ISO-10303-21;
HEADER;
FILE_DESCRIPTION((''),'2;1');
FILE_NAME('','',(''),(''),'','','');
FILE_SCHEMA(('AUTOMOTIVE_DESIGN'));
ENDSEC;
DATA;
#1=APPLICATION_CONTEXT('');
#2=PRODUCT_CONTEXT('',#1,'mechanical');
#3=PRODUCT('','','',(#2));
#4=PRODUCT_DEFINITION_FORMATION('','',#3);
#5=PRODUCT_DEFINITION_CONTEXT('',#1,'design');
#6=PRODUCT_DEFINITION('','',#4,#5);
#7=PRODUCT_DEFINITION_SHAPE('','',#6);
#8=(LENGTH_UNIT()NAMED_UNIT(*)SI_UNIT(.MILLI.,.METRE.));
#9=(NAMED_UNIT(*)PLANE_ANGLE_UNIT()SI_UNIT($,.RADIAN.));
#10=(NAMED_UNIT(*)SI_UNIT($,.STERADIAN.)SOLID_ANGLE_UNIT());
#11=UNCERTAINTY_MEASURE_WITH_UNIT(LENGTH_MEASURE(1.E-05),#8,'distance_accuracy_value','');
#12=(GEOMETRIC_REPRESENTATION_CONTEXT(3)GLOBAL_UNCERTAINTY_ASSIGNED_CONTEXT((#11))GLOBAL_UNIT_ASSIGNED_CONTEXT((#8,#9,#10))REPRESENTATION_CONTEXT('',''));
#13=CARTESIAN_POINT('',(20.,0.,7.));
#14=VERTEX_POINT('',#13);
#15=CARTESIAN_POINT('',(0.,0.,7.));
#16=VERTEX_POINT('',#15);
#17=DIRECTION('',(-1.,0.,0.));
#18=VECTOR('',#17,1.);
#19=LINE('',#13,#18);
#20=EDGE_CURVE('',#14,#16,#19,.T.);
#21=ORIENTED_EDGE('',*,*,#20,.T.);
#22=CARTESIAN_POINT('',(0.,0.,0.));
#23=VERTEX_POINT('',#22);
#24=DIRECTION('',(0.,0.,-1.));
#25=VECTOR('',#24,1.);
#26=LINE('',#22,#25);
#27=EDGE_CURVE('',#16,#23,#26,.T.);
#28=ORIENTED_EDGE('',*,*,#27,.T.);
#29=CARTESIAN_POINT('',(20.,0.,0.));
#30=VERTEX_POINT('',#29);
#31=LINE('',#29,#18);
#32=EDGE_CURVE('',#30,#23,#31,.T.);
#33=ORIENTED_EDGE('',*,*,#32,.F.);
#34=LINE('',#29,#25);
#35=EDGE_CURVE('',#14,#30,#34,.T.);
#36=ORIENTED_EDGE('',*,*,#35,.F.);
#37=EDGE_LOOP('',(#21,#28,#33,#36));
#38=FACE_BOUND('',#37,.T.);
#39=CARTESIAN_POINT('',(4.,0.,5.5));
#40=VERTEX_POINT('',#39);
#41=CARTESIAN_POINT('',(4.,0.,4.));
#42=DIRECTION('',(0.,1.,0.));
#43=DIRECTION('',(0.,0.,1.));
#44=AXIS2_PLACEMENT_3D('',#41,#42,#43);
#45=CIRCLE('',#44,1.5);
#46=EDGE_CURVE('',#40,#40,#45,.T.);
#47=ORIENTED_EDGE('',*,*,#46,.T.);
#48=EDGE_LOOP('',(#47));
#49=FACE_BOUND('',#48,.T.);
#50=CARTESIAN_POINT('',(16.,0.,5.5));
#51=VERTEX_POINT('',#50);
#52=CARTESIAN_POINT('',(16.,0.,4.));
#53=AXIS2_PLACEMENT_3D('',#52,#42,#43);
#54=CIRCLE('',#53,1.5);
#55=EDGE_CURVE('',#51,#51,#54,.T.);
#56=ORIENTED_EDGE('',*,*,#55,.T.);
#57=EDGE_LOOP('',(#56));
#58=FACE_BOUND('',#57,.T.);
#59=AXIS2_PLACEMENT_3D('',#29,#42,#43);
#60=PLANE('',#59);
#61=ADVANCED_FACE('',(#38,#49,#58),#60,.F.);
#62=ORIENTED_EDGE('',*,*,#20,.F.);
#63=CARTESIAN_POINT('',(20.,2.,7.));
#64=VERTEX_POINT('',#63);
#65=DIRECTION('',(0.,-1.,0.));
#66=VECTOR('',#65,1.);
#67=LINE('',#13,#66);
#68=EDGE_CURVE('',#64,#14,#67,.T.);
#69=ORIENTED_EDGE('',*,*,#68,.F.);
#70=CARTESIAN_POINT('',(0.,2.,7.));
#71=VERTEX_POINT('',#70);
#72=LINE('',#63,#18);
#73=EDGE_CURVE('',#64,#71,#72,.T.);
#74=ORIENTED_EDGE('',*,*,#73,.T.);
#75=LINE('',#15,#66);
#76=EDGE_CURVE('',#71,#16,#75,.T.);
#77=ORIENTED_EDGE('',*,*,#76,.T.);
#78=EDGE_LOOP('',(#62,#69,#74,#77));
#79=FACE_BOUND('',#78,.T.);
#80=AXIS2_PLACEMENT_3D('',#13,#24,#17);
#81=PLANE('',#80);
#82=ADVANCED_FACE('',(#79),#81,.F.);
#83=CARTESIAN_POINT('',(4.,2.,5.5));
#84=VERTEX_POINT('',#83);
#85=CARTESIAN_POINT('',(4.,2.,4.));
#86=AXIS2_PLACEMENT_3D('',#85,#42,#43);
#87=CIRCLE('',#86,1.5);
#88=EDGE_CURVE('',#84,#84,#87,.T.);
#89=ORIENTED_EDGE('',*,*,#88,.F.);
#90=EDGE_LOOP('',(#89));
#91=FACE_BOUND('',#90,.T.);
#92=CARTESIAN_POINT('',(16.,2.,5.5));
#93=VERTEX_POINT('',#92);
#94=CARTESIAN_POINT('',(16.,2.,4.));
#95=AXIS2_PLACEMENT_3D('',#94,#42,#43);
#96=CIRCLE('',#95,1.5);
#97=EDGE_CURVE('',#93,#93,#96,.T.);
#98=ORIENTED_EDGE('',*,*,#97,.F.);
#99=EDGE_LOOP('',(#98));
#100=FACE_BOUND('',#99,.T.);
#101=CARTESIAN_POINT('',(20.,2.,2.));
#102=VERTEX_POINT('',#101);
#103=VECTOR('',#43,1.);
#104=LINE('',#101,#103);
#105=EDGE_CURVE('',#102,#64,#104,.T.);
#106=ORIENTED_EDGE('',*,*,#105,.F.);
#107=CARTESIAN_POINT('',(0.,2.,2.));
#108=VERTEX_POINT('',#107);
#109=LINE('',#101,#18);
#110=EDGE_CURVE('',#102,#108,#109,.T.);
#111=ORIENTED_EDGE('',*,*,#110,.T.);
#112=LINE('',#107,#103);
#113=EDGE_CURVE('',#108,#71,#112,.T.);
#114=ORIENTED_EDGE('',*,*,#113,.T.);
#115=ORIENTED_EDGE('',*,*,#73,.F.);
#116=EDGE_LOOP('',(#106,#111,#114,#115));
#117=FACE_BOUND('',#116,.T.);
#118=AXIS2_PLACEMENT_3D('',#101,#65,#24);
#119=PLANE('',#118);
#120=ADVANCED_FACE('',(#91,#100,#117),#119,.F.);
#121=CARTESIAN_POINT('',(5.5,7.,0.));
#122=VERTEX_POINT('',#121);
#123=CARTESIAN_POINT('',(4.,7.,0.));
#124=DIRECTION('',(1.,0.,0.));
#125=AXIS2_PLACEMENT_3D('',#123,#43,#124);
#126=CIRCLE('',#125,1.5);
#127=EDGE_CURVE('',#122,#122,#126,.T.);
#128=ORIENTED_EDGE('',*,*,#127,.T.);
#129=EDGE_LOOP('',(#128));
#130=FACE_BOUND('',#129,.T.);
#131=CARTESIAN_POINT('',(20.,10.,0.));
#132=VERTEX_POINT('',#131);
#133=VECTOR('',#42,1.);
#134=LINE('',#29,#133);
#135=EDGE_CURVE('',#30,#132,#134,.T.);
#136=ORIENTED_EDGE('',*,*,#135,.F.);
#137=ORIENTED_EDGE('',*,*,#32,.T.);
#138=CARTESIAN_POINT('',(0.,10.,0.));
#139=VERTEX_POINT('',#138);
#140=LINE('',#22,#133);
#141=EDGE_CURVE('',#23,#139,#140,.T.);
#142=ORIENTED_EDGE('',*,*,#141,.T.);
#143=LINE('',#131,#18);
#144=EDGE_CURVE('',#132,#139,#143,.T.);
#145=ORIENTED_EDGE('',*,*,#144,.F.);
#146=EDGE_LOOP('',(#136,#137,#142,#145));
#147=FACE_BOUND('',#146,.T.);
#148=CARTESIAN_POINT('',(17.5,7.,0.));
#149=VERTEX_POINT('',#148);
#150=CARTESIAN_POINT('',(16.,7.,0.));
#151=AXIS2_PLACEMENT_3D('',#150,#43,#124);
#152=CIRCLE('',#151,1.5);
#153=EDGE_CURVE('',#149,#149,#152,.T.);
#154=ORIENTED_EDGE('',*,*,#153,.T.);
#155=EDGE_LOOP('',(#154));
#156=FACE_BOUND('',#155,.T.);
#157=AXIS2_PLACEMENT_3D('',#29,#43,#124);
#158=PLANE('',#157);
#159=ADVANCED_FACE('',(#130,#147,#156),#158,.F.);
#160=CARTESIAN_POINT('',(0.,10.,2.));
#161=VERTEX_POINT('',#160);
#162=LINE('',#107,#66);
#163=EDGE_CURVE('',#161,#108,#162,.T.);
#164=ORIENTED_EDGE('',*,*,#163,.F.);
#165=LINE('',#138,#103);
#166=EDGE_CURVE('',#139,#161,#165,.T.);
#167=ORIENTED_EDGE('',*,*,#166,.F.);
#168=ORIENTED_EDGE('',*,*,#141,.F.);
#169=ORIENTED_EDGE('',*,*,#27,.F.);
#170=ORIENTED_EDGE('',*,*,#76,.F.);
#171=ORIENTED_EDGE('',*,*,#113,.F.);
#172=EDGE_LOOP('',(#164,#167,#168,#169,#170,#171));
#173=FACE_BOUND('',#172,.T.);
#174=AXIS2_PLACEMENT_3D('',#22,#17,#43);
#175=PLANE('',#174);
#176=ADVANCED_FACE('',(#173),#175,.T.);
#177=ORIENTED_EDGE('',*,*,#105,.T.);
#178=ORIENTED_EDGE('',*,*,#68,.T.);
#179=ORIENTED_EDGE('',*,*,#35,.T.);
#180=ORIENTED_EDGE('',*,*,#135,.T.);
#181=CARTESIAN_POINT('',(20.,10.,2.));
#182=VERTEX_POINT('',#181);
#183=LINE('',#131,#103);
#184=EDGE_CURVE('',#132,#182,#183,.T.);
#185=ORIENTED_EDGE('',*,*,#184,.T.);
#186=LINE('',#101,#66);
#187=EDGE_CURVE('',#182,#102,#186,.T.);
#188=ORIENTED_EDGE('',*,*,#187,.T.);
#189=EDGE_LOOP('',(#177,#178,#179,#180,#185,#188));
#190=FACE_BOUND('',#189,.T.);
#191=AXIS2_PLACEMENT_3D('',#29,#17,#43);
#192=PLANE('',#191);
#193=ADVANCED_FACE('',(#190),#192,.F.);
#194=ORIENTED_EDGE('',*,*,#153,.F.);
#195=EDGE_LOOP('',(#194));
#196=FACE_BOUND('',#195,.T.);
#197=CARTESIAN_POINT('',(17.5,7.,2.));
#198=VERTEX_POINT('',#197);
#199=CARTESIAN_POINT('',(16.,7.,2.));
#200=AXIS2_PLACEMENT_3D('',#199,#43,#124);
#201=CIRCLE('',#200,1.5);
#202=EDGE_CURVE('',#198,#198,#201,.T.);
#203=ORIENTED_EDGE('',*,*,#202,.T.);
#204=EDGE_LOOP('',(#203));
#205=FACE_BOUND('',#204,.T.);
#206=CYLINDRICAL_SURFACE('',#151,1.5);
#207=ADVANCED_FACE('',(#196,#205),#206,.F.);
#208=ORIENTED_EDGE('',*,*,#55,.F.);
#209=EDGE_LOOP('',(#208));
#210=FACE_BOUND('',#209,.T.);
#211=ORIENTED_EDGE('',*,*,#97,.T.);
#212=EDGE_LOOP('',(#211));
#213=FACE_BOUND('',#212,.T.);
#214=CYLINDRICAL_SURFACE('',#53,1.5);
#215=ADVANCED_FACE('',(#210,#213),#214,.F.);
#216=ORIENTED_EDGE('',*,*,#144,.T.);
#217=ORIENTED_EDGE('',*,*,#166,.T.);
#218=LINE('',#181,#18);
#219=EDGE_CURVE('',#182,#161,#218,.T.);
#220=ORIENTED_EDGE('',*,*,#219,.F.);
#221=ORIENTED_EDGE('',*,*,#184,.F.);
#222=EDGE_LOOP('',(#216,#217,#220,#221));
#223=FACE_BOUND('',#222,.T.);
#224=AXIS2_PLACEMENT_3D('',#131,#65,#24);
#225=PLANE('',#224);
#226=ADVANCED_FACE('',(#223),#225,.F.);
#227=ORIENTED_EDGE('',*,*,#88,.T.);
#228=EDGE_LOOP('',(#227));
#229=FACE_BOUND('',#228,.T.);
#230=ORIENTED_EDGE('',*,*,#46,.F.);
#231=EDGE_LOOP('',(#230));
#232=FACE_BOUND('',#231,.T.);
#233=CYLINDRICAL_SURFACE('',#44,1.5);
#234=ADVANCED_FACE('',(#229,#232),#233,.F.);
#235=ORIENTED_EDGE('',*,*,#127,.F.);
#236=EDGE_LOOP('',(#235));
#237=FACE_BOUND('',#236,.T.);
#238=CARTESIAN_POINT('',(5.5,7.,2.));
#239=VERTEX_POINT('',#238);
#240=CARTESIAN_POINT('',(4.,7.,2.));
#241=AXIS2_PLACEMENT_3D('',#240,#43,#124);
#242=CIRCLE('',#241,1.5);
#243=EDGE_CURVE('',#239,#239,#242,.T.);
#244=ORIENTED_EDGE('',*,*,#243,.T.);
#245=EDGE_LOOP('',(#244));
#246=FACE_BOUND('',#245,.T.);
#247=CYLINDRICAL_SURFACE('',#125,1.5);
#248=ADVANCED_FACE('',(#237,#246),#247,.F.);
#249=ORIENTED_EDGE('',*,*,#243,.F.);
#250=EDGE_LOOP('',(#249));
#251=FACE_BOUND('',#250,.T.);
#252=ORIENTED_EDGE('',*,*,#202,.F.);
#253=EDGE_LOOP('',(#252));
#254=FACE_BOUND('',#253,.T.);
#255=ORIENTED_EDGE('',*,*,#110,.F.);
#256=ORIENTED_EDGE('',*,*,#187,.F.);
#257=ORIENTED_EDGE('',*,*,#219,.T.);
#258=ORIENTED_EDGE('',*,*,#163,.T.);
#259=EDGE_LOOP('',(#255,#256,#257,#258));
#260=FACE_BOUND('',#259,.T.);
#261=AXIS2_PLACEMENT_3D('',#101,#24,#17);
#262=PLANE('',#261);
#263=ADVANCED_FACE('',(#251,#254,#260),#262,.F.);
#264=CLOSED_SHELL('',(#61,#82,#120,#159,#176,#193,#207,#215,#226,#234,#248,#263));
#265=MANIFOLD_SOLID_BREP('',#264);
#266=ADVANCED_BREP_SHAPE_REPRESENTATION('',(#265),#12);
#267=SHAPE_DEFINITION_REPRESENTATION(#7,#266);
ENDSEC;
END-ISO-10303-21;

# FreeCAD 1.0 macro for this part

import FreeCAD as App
import Part
import Sketcher

doc = App.newDocument("Part")
body = doc.addObject("PartDesign::Body", "Body")

# Sketch on YZ plane
sketch1 = body.newObject("Sketcher::SketchObject", "Sketch")
sketch1.AttachmentSupport = (doc.getObject("YZ_Plane"), [""])
sketch1.MapMode = "FlatFace"
sketch1.addGeometry([
    Part.LineSegment(App.Vector(0, 0, 0), App.Vector(10, 0, 0)),  # 0
    Part.LineSegment(App.Vector(10, 0, 0), App.Vector(10, 2, 0)),  # 1
    Part.LineSegment(App.Vector(10, 2, 0), App.Vector(2, 2, 0)),  # 2
    Part.LineSegment(App.Vector(2, 2, 0), App.Vector(2, 7, 0)),  # 3
    Part.LineSegment(App.Vector(2, 7, 0), App.Vector(0, 7, 0)),  # 4
    Part.LineSegment(App.Vector(0, 7, 0), App.Vector(0, 0, 0)),  # 5
], False)
sketch1.addConstraint([
    Sketcher.Constraint("Coincident", 0, 2, 1, 1),
    Sketcher.Constraint("Coincident", 1, 2, 2, 1),
    Sketcher.Constraint("Coincident", 2, 2, 3, 1),
    Sketcher.Constraint("Coincident", 3, 2, 4, 1),
    Sketcher.Constraint("Coincident", 4, 2, 5, 1),
    Sketcher.Constraint("Coincident", 5, 2, 0, 1),
    Sketcher.Constraint("Horizontal", 0),
    Sketcher.Constraint("Vertical", 1),
    Sketcher.Constraint("Horizontal", 2),
    Sketcher.Constraint("Vertical", 3),
    Sketcher.Constraint("Horizontal", 4),
    Sketcher.Constraint("Vertical", 5),
    Sketcher.Constraint("Coincident", 5, 2, -1, 1),
    Sketcher.Constraint("Equal", 4, 1),
    Sketcher.Constraint("DistanceX", 0, 1, 0, 2, 10.0),
    Sketcher.Constraint("DistanceX", 2, 2, 2, 1, 8.0),
    Sketcher.Constraint("DistanceY", 3, 1, 3, 2, 5.0),
])
pad1 = body.newObject("PartDesign::Pad", "Pad")
pad1.Profile = sketch1
pad1.Length = 20

# Sketch on XZ plane
sketch2 = body.newObject("Sketcher::SketchObject", "Sketch001")
sketch2.AttachmentSupport = (doc.getObject("XZ_Plane"), [""])
sketch2.MapMode = "FlatFace"
sketch2.AttachmentOffset = App.Placement(App.Vector(0, 0, -2), App.Rotation())
sketch2.addGeometry([
    Part.Circle(App.Vector(4, 4, 0), App.Vector(0, 0, 1), 1.5),
    Part.Circle(App.Vector(16, 4, 0), App.Vector(0, 0, 1), 1.5),
], False)
sketch2.addConstraint([
    Sketcher.Constraint("Equal", 0, 1),
    Sketcher.Constraint("Horizontal", 0, 3, 1, 3),
    Sketcher.Constraint("Diameter", 0, 3.0),
    Sketcher.Constraint("DistanceX", -1, 1, 0, 3, 4.0),
    Sketcher.Constraint("DistanceY", -1, 1, 0, 3, 4.0),
    Sketcher.Constraint("DistanceX", -1, 1, 1, 3, 16.0),
])
pocket1 = body.newObject("PartDesign::Pocket", "Pocket")
pocket1.Profile = sketch2
pocket1.Type = "ThroughAll"
pocket1.Reversed = True

# Sketch on XY plane
sketch3 = body.newObject("Sketcher::SketchObject", "Sketch002")
sketch3.AttachmentSupport = (doc.getObject("XY_Plane"), [""])
sketch3.MapMode = "FlatFace"
sketch3.AttachmentOffset = App.Placement(App.Vector(0, 0, 2), App.Rotation())
sketch3.addGeometry([
    Part.Circle(App.Vector(4, 7, 0), App.Vector(0, 0, 1), 1.5),
    Part.Circle(App.Vector(16, 7, 0), App.Vector(0, 0, 1), 1.5),
], False)
sketch3.addConstraint([
    Sketcher.Constraint("Equal", 0, 1),
    Sketcher.Constraint("Horizontal", 0, 3, 1, 3),
    Sketcher.Constraint("Diameter", 0, 3.0),
    Sketcher.Constraint("DistanceX", -1, 1, 0, 3, 4.0),
    Sketcher.Constraint("DistanceY", -1, 1, 0, 3, 7.0),
    Sketcher.Constraint("DistanceX", -1, 1, 1, 3, 16.0),
])
pocket2 = body.newObject("PartDesign::Pocket", "Pocket001")
pocket2.Profile = sketch3
pocket2.Type = "ThroughAll"

doc.recompute()
